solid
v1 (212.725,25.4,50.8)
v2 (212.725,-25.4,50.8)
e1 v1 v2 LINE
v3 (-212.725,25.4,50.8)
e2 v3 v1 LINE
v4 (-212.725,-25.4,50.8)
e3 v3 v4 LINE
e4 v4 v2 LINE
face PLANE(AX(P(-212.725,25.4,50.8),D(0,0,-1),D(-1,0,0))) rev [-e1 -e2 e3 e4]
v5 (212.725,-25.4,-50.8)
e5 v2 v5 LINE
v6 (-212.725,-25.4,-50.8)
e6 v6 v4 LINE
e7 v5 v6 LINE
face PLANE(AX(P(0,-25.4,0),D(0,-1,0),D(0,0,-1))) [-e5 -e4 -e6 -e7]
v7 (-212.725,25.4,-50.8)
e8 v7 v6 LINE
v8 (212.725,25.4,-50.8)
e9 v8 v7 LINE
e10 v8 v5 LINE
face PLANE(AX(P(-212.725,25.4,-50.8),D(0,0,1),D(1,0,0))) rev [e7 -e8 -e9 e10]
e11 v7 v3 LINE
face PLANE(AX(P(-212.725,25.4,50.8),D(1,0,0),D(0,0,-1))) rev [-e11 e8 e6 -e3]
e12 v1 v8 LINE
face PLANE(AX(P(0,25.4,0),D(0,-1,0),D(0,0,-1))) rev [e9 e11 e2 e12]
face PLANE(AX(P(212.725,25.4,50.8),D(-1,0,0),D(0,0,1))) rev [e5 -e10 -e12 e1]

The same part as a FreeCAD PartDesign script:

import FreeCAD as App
import Part
import Sketcher
from FreeCAD import Vector
Q = App.Units.Quantity

doc = App.newDocument("Part")
params = doc.addObject("Spreadsheet::Sheet", "Params")
for row, (alias, value) in enumerate([
    ("sketch1_height", "4 in"),
    ("sketch1_width", "16.75 in"),
    ("pad1_length", "2 in"),
], start=1):
    params.set(f"A{row}", alias)
    params.set(f"B{row}", "=" + value)
    params.setAlias(f"B{row}", alias)

body = doc.addObject("PartDesign::Body", "Body")

# Sketch on XZ plane
sketch1 = body.newObject("Sketcher::SketchObject", "Sketch")
sketch1.AttachmentSupport = (doc.getObject("XZ_Plane"), [""])
sketch1.MapMode = "FlatFace"
sketch1.addGeometry([
    Part.LineSegment(Vector(-212.725, -50.8, 0), Vector(-212.725, 50.8, 0)),
    Part.LineSegment(Vector(-212.725, 50.8, 0), Vector(212.725, 50.8, 0)),
    Part.LineSegment(Vector(212.725, 50.8, 0), Vector(212.725, -50.8, 0)),
    Part.LineSegment(Vector(212.725, -50.8, 0), Vector(-212.725, -50.8, 0)),
], False)
sketch1.addConstraint([
    Sketcher.Constraint("Coincident", 0, 2, 1, 1),
    Sketcher.Constraint("Coincident", 1, 2, 2, 1),
    Sketcher.Constraint("Coincident", 2, 2, 3, 1),
    Sketcher.Constraint("Coincident", 3, 2, 0, 1),
    Sketcher.Constraint("Vertical", 0),
    Sketcher.Constraint("Horizontal", 1),
    Sketcher.Constraint("Vertical", 2),
    Sketcher.Constraint("Horizontal", 3),
    Sketcher.Constraint("Symmetric", 0, 2, 2, 2, -1, 1),
    Sketcher.Constraint("DistanceY", 0, 1, 0, 2, Q("4 in")),
    Sketcher.Constraint("DistanceX", 1, 1, 1, 2, Q("16.75 in")),
])
sketch1.setExpression("Constraints[9]", "Params.sketch1_height")
sketch1.setExpression("Constraints[10]", "Params.sketch1_width")
pad1 = body.newObject("PartDesign::Pad", "Pad")
pad1.Profile = sketch1
pad1.setExpression("Length", "Params.pad1_length")
pad1.Midplane = True

doc.recompute()
